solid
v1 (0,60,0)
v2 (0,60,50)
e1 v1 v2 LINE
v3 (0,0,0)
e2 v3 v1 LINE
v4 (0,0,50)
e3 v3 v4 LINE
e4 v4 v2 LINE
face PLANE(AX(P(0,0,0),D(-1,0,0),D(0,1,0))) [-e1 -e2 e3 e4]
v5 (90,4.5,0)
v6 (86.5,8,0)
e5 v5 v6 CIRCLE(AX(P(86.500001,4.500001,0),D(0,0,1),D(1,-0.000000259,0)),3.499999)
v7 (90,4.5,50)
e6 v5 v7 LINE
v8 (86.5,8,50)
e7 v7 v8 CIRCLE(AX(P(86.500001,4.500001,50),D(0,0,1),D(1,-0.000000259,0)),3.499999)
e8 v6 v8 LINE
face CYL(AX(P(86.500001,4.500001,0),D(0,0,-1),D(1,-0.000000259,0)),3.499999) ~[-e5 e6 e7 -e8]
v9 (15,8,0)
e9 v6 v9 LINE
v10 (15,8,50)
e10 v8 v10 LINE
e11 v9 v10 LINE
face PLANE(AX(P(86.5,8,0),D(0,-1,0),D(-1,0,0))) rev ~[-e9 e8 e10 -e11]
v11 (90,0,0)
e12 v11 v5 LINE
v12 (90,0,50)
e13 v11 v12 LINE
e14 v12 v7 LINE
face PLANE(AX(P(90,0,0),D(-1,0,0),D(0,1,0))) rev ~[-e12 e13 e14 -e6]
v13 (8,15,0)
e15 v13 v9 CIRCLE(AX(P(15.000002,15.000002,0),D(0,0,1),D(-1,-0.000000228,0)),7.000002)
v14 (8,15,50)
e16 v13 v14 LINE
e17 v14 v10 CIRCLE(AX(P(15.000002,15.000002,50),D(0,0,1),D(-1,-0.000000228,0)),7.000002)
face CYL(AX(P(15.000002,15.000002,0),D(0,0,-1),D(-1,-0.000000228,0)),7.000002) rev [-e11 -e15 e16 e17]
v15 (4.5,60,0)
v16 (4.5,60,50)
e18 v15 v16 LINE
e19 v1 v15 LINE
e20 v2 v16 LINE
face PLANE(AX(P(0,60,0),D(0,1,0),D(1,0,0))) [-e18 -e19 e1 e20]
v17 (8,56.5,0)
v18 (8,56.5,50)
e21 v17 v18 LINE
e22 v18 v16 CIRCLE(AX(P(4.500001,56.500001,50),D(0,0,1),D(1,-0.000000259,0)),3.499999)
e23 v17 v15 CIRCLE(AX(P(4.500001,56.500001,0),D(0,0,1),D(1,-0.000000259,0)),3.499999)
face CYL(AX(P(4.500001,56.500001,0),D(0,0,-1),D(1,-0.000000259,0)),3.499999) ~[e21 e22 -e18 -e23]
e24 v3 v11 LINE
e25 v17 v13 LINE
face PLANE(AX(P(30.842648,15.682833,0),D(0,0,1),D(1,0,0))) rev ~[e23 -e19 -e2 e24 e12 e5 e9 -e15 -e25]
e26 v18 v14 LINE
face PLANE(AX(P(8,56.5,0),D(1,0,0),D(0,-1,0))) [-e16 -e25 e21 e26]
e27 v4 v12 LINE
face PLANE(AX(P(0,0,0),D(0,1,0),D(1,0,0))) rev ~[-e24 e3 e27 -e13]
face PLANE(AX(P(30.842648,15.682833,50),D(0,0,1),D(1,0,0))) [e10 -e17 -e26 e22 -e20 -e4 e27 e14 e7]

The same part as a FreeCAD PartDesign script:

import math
import FreeCAD as App
import Part
import Sketcher

V = App.Vector
Q = App.Units.Quantity

doc = App.newDocument("Part")
body = doc.addObject("PartDesign::Body", "Body")

sketch1 = body.newObject("Sketcher::SketchObject", "Sketch")
sketch1.AttachmentSupport = (doc.getObject("XY_Plane"), [""])
sketch1.MapMode = "FlatFace"
sketch1.addGeometry(Part.LineSegment(V(0, 0, 0), V(90, 0, 0)), False)
sketch1.addGeometry(Part.LineSegment(V(90, 0, 0), V(90, 4.5, 0)), False)
sketch1.addGeometry(Part.ArcOfCircle(Part.Circle(V(86.5, 4.5, 0), V(0, 0, 1), 3.5), math.radians(0), math.radians(90)), False)
sketch1.addGeometry(Part.LineSegment(V(86.5, 8, 0), V(15, 8, 0)), False)
sketch1.addGeometry(Part.ArcOfCircle(Part.Circle(V(15, 15, 0), V(0, 0, 1), 7), math.radians(-180), math.radians(-90)), False)
sketch1.addGeometry(Part.LineSegment(V(8, 15, 0), V(8, 56.5, 0)), False)
sketch1.addGeometry(Part.ArcOfCircle(Part.Circle(V(4.5, 56.5, 0), V(0, 0, 1), 3.5), math.radians(0), math.radians(90)), False)
sketch1.addGeometry(Part.LineSegment(V(4.5, 60, 0), V(0, 60, 0)), False)
sketch1.addGeometry(Part.LineSegment(V(0, 60, 0), V(0, 0, 0)), False)
sketch1.addConstraint(Sketcher.Constraint("Coincident", 0, 2, 1, 1))
sketch1.addConstraint(Sketcher.Constraint("Tangent", 1, 2, 2, 1))
sketch1.addConstraint(Sketcher.Constraint("Tangent", 2, 2, 3, 1))
sketch1.addConstraint(Sketcher.Constraint("Tangent", 3, 2, 4, 2))
sketch1.addConstraint(Sketcher.Constraint("Tangent", 4, 1, 5, 1))
sketch1.addConstraint(Sketcher.Constraint("Tangent", 5, 2, 6, 1))
sketch1.addConstraint(Sketcher.Constraint("Tangent", 6, 2, 7, 1))
sketch1.addConstraint(Sketcher.Constraint("Coincident", 7, 2, 8, 1))
sketch1.addConstraint(Sketcher.Constraint("Coincident", 8, 2, 0, 1))
sketch1.addConstraint(Sketcher.Constraint("Horizontal", 0))
sketch1.addConstraint(Sketcher.Constraint("Vertical", 1))
sketch1.addConstraint(Sketcher.Constraint("Horizontal", 3))
sketch1.addConstraint(Sketcher.Constraint("Vertical", 5))
sketch1.addConstraint(Sketcher.Constraint("Horizontal", 7))
sketch1.addConstraint(Sketcher.Constraint("Vertical", 8))
sketch1.addConstraint(Sketcher.Constraint("Coincident", 8, 2, -1, 1))
sketch1.addConstraint(Sketcher.Constraint("Equal", 2, 6))
sketch1.addConstraint(Sketcher.Constraint("Equal", 7, 1))
sketch1.addConstraint(Sketcher.Constraint("Radius", 4, Q("7.000002 mm")))
sketch1.addConstraint(Sketcher.Constraint("Radius", 2, Q("3.499999 mm")))
sketch1.addConstraint(Sketcher.Constraint("DistanceX", 0, 1, 0, 2, Q("90 mm")))
sketch1.addConstraint(Sketcher.Constraint("DistanceY", 8, 2, 8, 1, Q("60 mm")))
sketch1.addConstraint(Sketcher.Constraint("DistanceX", 3, 2, 3, 1, Q("71.5 mm")))
pad1 = body.newObject("PartDesign::Pad", "Pad")
pad1.Profile = sketch1
pad1.Length = 50

doc.recompute()
